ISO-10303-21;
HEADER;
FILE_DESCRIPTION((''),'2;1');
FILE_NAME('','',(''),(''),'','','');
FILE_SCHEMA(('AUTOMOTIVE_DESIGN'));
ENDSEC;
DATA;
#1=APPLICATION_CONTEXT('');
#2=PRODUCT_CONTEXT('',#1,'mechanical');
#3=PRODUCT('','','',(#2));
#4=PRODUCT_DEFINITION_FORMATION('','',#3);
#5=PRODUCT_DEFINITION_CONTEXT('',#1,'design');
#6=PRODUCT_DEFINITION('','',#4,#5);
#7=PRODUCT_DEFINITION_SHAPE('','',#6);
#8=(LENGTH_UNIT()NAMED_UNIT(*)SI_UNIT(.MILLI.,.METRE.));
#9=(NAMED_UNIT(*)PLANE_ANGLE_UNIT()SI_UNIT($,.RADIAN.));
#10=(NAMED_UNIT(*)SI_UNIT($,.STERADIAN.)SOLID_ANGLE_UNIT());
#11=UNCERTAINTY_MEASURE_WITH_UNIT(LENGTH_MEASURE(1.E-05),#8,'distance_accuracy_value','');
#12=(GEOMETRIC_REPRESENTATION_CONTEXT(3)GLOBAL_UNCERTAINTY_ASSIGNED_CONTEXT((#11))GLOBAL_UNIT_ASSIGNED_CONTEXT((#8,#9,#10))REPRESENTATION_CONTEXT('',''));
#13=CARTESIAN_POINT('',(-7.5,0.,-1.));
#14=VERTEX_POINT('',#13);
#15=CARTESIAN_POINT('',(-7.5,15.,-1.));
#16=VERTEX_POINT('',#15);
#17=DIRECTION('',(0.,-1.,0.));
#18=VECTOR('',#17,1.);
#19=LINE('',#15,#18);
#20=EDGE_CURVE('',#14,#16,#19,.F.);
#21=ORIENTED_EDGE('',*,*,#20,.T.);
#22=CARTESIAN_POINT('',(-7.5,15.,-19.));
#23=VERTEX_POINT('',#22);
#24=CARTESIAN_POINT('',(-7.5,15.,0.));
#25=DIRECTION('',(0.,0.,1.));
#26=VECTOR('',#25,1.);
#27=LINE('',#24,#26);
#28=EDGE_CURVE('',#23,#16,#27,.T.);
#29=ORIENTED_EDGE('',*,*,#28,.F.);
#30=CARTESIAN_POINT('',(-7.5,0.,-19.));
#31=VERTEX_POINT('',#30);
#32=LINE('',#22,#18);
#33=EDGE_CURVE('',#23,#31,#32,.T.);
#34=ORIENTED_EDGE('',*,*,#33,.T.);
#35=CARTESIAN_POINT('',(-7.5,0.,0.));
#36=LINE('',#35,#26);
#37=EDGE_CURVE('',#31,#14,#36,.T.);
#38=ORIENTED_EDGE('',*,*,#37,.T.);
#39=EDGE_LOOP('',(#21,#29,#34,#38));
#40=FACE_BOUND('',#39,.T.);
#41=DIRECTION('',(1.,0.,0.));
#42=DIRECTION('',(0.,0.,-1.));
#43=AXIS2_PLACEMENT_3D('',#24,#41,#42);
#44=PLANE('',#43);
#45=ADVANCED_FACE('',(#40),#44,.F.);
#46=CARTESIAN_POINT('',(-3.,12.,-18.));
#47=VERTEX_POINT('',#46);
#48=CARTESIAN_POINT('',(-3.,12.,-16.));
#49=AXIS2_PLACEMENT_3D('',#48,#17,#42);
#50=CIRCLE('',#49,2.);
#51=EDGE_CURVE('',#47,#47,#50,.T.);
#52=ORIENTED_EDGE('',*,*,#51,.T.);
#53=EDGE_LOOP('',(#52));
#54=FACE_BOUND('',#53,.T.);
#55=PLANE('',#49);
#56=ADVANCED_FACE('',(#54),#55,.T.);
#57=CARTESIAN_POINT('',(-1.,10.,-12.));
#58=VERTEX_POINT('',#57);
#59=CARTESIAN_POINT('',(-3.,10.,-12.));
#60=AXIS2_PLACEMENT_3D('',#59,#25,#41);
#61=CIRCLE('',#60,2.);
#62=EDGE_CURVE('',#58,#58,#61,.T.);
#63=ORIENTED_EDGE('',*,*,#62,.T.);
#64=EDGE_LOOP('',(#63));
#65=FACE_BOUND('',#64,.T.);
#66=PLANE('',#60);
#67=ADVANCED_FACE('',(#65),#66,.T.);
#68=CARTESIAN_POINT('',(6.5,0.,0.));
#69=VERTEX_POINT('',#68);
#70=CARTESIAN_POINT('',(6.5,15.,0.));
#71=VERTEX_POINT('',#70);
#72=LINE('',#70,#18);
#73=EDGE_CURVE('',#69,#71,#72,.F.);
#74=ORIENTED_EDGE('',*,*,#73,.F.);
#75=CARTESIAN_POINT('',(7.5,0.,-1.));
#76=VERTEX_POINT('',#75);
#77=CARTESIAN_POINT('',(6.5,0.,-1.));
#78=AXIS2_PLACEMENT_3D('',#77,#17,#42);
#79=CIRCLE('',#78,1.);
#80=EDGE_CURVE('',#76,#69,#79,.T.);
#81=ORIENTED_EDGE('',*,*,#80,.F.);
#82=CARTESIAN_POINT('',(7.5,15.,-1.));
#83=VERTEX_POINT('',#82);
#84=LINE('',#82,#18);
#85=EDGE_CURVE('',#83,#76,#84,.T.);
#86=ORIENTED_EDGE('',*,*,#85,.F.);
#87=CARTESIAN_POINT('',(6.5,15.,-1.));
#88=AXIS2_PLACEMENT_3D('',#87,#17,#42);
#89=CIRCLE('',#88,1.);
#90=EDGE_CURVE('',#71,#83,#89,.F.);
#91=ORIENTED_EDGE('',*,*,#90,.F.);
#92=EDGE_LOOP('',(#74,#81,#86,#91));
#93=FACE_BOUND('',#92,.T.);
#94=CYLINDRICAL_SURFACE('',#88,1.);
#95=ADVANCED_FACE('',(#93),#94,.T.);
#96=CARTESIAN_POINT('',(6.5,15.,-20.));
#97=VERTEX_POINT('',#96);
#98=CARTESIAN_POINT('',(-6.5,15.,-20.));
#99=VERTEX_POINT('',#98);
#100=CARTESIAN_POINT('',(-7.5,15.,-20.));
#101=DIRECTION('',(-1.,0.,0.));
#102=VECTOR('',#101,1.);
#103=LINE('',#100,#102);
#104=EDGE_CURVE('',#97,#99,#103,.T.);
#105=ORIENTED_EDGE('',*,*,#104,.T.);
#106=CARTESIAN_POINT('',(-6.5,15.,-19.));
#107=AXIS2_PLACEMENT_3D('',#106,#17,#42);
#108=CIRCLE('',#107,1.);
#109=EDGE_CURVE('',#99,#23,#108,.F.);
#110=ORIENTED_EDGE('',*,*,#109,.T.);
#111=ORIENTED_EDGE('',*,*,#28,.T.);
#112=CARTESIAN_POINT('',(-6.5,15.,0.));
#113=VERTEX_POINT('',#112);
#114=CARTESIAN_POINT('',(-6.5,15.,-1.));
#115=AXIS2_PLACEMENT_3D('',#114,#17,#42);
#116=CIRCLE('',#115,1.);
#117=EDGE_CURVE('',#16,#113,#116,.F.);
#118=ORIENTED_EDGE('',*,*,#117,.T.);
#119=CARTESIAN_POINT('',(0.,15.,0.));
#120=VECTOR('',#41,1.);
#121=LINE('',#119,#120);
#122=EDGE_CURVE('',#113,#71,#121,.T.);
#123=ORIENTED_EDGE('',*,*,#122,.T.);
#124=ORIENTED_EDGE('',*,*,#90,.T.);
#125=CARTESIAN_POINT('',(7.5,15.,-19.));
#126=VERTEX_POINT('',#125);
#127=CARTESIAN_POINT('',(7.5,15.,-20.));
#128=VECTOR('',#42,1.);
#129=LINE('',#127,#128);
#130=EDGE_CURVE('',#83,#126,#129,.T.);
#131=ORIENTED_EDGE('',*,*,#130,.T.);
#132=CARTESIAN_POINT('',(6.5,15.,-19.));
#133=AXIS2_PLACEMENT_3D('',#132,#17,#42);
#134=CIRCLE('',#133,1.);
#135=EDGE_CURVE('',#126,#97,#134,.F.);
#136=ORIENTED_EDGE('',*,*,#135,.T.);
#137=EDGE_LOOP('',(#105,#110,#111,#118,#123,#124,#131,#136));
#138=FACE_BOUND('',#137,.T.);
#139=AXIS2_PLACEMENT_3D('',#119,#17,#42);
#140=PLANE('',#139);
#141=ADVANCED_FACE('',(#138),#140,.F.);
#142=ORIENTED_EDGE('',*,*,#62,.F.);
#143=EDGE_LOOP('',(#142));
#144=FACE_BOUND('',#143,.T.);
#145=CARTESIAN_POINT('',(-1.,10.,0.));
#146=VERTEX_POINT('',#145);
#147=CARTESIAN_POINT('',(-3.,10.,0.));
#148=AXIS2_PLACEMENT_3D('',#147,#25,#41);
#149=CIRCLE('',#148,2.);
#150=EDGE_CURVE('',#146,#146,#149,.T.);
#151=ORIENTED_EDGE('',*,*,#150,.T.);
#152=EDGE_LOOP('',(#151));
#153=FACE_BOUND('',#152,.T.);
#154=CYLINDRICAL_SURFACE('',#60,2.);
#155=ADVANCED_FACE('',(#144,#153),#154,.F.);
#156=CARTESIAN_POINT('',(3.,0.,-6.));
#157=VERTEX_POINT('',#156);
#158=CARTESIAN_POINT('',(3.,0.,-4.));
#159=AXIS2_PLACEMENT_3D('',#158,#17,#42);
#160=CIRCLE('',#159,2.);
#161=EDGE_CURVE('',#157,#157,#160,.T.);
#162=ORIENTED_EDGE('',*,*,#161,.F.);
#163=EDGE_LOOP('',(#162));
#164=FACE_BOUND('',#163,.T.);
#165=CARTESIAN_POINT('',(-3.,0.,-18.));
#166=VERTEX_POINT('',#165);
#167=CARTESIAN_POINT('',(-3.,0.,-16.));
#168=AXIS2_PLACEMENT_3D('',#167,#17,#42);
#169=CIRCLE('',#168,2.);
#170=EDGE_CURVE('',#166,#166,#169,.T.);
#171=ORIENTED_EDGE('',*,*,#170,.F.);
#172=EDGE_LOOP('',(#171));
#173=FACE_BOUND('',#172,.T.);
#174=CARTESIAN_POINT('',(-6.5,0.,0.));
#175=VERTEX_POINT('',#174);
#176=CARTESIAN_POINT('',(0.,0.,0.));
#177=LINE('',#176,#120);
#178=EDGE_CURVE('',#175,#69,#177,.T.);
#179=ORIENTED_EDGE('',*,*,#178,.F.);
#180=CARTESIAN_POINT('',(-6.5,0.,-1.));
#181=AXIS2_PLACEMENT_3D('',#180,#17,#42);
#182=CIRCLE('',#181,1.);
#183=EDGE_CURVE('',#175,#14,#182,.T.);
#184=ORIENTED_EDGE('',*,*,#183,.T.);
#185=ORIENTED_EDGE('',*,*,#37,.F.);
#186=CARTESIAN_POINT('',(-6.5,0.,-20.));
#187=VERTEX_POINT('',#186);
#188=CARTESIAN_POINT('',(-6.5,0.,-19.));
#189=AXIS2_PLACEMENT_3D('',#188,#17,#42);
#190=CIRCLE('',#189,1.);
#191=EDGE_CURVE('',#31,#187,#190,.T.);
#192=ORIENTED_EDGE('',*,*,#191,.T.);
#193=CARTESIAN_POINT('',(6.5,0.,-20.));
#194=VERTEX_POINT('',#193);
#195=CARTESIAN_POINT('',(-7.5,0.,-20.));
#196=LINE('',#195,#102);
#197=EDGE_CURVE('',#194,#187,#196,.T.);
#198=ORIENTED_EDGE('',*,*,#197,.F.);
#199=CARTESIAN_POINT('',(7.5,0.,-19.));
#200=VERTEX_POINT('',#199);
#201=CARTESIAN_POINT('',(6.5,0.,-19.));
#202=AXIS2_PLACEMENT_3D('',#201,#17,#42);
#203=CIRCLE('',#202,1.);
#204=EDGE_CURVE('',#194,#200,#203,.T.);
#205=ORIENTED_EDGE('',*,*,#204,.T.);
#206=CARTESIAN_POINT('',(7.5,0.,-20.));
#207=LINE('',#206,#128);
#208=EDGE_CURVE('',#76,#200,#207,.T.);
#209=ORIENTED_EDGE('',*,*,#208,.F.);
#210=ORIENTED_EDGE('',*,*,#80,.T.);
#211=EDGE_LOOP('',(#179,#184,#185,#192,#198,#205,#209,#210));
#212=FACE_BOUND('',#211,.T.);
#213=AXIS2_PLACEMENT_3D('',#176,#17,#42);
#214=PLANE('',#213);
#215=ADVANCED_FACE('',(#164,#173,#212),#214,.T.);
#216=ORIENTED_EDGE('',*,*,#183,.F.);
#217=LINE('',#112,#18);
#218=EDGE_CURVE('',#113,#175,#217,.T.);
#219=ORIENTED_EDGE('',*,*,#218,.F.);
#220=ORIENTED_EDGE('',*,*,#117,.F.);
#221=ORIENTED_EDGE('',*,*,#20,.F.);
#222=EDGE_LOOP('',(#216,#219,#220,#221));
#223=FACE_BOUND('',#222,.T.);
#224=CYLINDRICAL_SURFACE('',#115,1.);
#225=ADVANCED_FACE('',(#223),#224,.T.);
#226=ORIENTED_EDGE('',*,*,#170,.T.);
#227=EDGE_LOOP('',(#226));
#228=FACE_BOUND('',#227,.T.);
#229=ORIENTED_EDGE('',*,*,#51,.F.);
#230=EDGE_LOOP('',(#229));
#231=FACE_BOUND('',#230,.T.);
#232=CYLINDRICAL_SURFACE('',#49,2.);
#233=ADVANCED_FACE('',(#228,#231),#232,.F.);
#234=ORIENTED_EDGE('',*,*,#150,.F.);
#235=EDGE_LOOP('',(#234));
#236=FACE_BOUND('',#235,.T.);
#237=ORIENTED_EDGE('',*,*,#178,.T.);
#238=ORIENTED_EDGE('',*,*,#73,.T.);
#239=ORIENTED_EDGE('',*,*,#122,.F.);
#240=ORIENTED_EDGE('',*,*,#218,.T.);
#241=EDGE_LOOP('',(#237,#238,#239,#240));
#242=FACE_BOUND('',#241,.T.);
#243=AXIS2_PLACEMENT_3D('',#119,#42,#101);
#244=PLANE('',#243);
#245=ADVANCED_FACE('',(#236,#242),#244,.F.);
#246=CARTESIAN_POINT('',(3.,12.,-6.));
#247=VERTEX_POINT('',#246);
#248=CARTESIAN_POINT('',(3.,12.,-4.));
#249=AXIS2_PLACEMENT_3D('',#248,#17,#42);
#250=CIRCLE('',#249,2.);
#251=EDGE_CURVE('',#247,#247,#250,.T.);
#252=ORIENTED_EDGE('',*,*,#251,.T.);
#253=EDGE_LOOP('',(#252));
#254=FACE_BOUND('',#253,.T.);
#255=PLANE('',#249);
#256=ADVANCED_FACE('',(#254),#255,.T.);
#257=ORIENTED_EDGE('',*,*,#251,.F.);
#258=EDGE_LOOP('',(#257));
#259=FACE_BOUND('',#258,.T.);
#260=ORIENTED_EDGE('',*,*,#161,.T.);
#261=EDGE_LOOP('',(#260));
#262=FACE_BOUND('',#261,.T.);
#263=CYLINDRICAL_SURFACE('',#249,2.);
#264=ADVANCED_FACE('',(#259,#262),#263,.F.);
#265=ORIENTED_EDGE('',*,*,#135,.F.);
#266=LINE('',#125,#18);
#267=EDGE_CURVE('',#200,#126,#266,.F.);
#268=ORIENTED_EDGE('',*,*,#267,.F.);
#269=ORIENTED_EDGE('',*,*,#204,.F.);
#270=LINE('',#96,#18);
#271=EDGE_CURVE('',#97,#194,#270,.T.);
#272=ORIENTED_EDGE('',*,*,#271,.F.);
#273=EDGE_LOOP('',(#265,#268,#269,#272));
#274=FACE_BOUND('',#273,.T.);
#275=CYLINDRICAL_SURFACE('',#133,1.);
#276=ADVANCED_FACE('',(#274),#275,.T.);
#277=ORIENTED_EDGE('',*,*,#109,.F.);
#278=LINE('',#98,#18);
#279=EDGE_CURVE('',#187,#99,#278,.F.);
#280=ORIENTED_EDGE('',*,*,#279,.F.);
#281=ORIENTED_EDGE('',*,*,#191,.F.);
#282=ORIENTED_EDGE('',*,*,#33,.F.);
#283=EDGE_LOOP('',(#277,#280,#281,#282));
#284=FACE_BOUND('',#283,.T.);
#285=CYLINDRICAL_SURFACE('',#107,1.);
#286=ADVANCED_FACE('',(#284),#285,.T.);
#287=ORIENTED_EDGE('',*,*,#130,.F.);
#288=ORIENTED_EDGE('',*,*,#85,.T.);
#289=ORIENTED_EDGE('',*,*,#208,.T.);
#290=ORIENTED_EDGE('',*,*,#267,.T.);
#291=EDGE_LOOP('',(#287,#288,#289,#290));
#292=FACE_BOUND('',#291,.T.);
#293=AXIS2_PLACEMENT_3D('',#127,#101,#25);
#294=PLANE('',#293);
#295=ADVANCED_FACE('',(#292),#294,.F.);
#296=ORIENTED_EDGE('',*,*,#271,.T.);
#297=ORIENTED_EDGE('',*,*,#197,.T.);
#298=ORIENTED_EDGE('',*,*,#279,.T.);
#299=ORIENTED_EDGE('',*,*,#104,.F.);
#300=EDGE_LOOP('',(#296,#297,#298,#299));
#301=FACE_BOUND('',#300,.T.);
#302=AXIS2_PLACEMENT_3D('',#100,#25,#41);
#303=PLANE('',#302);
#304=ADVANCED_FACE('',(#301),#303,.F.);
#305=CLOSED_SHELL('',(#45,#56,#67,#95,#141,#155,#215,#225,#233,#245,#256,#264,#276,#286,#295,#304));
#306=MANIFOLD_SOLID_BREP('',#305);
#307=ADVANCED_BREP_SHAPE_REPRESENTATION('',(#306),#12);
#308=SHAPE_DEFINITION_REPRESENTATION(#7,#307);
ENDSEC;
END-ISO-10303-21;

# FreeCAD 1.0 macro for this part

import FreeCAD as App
import Part
import Sketcher

V = App.Vector


def edges_at(feature, points):
    """Names of the edges that pass closest to the given points."""
    edges = feature.Shape.Edges
    near = lambda p: min(range(len(edges)), key=lambda i: edges[i].distToShape(Part.Vertex(*p))[0])
    return sorted({f"Edge{near(p) + 1}" for p in points})

doc = App.newDocument("Part")
body = doc.addObject("PartDesign::Body", "Body")

# Sketch on XZ plane
sketch1 = body.newObject("Sketcher::SketchObject", "Sketch")
sketch1.AttachmentSupport = (doc.getObject("XZ_Plane"), [""])
sketch1.MapMode = "FlatFace"
sketch1.addGeometry([
    Part.LineSegment(V(8, 0, 0), V(8, -20, 0)),
    Part.LineSegment(V(8, -20, 0), V(-8, -20, 0)),
    Part.LineSegment(V(-8, -20, 0), V(-8, 0, 0)),
    Part.LineSegment(V(-8, 0, 0), V(8, 0, 0)),
], False)
sketch1.addConstraint([
    Sketcher.Constraint("Coincident", 0, 2, 1, 1),
    Sketcher.Constraint("Coincident", 1, 2, 2, 1),
    Sketcher.Constraint("Coincident", 2, 2, 3, 1),
    Sketcher.Constraint("Coincident", 3, 2, 0, 1),
    Sketcher.Constraint("Vertical", 0),
    Sketcher.Constraint("Horizontal", 1),
    Sketcher.Constraint("Vertical", 2),
    Sketcher.Constraint("Horizontal", 3),
    Sketcher.Constraint("Symmetric", 2, 2, 3, 2, -1, 1),
    Sketcher.Constraint("DistanceX", 1, 2, 1, 1, 15.0),
    Sketcher.Constraint("DistanceY", 0, 2, 0, 1, 20.0),
])
pad1 = body.newObject("PartDesign::Pad", "Pad")
pad1.Profile = sketch1
pad1.Length = 15
pad1.Reversed = True

# Sketch on XZ plane
sketch2 = body.newObject("Sketcher::SketchObject", "Sketch001")
sketch2.AttachmentSupport = (doc.getObject("XZ_Plane"), [""])
sketch2.MapMode = "FlatFace"
sketch2.addGeometry([
    Part.Circle(V(-3, -16, 0), V(0, 0, 1), 2),
    Part.Circle(V(3, -4, 0), V(0, 0, 1), 2),
], False)
sketch2.addConstraint([
    Sketcher.Constraint("Equal", 0, 1),
    Sketcher.Constraint("Diameter", 0, 4.0),
    Sketcher.Constraint("DistanceX", 0, 3, -1, 1, 3.0),
    Sketcher.Constraint("DistanceY", 0, 3, -1, 1, 16.0),
    Sketcher.Constraint("DistanceX", -1, 1, 1, 3, 3.0),
    Sketcher.Constraint("DistanceY", 1, 3, -1, 1, 4.0),
])
pocket1 = body.newObject("PartDesign::Pocket", "Pocket")
pocket1.Profile = sketch2
pocket1.Length = 12

# Sketch on XY plane
sketch3 = body.newObject("Sketcher::SketchObject", "Sketch002")
sketch3.AttachmentSupport = (doc.getObject("XY_Plane"), [""])
sketch3.MapMode = "FlatFace"
sketch3.addGeometry(Part.Circle(V(-3, 10, 0), V(0, 0, 1), 2), False)
sketch3.addConstraint([
    Sketcher.Constraint("Diameter", 0, 4.0),
    Sketcher.Constraint("DistanceX", 0, 3, -1, 1, 3.0),
    Sketcher.Constraint("DistanceY", -1, 1, 0, 3, 10.0),
])
pocket2 = body.newObject("PartDesign::Pocket", "Pocket001")
pocket2.Profile = sketch3
pocket2.Length = 12
doc.recompute()

fillet = body.newObject("PartDesign::Fillet", "Fillet")
fillet.Base = (pocket2, edges_at(pocket2, [
    (-7.5, 7.5, 0),
    (-7.5, 7.5, -20),
    (7.5, 7.5, -20),
    (7.5, 7.5, 0),
]))
fillet.Radius = 1

doc.recompute()
